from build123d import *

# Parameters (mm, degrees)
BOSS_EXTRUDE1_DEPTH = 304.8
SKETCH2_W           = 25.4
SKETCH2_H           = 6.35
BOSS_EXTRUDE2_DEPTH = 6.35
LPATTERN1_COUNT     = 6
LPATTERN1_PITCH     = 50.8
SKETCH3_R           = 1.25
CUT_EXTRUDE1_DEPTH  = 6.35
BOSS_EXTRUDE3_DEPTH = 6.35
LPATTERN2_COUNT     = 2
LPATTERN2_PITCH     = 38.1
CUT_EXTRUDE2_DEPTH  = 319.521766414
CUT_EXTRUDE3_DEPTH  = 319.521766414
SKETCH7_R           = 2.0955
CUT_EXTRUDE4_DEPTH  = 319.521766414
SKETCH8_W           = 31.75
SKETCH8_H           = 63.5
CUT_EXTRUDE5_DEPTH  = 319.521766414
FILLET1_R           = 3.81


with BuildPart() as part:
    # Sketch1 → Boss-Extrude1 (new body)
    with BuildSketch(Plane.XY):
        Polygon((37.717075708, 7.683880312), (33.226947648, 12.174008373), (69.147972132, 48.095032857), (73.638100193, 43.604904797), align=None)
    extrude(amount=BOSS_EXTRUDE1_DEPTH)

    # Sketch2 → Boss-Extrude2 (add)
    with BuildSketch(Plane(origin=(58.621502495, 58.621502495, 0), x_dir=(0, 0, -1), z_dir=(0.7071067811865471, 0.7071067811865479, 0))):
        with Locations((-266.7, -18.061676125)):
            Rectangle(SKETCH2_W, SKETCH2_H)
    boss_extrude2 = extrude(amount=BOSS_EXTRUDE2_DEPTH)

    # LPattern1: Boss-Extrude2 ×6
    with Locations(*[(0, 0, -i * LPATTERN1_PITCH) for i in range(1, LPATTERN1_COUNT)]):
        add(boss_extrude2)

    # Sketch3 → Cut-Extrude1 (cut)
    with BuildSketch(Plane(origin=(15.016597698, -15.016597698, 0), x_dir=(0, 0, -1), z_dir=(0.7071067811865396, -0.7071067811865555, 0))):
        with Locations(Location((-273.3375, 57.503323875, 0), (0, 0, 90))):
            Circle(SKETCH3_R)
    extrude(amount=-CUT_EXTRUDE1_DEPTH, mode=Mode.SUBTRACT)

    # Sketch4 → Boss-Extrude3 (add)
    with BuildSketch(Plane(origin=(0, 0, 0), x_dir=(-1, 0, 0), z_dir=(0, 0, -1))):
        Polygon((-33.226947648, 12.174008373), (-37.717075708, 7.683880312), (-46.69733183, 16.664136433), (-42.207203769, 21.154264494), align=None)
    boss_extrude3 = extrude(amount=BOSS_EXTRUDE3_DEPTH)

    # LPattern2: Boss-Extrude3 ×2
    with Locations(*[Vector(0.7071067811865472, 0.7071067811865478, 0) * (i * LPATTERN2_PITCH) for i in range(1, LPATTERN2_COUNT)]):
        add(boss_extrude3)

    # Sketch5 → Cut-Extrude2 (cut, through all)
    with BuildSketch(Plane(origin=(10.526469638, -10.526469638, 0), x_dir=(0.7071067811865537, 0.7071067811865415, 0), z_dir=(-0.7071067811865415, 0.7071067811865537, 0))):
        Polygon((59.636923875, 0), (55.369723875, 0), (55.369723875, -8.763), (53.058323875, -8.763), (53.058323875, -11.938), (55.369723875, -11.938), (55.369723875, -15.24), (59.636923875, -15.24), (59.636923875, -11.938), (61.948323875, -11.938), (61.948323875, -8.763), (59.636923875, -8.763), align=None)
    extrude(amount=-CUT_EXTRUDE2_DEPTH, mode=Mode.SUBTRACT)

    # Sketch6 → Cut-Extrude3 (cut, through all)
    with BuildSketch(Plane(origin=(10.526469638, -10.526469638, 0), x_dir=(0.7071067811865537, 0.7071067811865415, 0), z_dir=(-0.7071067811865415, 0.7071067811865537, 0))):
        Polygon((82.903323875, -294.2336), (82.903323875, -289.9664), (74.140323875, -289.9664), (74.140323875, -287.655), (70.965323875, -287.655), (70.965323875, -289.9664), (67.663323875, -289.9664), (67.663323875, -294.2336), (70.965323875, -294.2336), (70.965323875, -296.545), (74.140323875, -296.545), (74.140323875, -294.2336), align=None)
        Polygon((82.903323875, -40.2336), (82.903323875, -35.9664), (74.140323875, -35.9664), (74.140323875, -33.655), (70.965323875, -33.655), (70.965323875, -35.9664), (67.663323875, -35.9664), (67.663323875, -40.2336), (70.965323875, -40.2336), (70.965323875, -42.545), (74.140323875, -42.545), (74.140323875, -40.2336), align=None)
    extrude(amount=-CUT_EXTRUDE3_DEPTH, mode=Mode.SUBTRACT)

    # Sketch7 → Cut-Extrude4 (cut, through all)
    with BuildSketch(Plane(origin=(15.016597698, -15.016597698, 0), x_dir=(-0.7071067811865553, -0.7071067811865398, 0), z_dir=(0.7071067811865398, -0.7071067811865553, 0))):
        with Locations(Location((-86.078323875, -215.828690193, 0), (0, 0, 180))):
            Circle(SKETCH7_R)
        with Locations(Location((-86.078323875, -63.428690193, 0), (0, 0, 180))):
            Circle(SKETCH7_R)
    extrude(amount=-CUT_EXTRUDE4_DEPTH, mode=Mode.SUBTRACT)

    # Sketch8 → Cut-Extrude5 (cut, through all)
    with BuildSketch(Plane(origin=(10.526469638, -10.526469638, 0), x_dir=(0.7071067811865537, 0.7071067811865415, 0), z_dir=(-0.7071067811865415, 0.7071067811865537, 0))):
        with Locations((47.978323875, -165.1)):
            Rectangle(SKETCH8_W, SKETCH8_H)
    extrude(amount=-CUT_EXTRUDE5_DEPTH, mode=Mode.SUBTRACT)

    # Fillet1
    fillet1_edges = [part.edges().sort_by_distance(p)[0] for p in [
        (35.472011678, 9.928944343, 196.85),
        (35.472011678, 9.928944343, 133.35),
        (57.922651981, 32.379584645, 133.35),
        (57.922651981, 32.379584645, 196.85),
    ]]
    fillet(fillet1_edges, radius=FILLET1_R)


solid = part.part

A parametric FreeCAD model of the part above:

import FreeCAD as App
import Part
import Sketcher
Q = App.Units.Quantity


def edges_at(feature, points):
    """Names of the edges that pass closest to the given points."""
    edges = feature.Shape.Edges
    near = lambda p: min(range(len(edges)), key=lambda i: edges[i].distToShape(Part.Vertex(*p))[0])
    return sorted({f"Edge{near(p) + 1}" for p in points})


def add_polygon(sketch, points):
    """Adds a closed chain of lines whose ends are joined by coincident constraints."""
    first, n = sketch.GeometryCount, len(points)
    for a, b in zip(points, points[1:] + points[:1]):
        sketch.addGeometry(Part.LineSegment(App.Vector(*a, 0), App.Vector(*b, 0)), False)
    for i in range(n):
        sketch.addConstraint(Sketcher.Constraint("Coincident", first + i, 2, first + (i + 1) % n, 1))

doc = App.newDocument("Part")
body = doc.addObject("PartDesign::Body", "Body")

# Sketch on XY plane
sketch1 = body.newObject("Sketcher::SketchObject", "Sketch")
sketch1.AttachmentSupport = (doc.getObject("XY_Plane"), [""])
sketch1.MapMode = "FlatFace"
add_polygon(sketch1, [(33.226948, 12.174008), (37.717076, 7.68388), (73.6381, 43.604905), (69.147972, 48.095033)])  # lines 0-3
sketch1.addConstraint([
    Sketcher.Constraint("Perpendicular", 0, 1),
    Sketcher.Constraint("Perpendicular", 1, 2),
    Sketcher.Constraint("Perpendicular", 2, 3),
    Sketcher.Constraint("Distance", 1, Q("2 in")),
    Sketcher.Constraint("Angle", 0, Q("-45 deg")),
    Sketcher.Constraint("Distance", 0, Q("0.25 in")),
    Sketcher.Constraint("DistanceX", -1, 1, 1, 2, Q("73.6381 mm")),
    Sketcher.Constraint("DistanceY", -1, 1, 0, 2, Q("7.68388 mm")),
])
pad1 = body.newObject("PartDesign::Pad", "Pad")
pad1.Profile = sketch1
pad1.Length = Q("12 in")

# Sketch on an angled plane
sketch2 = body.newObject("Sketcher::SketchObject", "Sketch001")
sketch2.Placement = App.Placement(App.Vector(58.621502, 58.621502, 0), App.Rotation(App.Vector(0, 0, -1), App.Vector(-0.707106781, 0.707106781, 0), App.Vector(0.707106781, 0.707106781, 0), "ZXY"))
add_polygon(sketch2, [(-279.4, -14.886676), (-279.4, -21.236676), (-254, -21.236676), (-254, -14.886676)])  # lines 0-3
sketch2.addConstraint([
    Sketcher.Constraint("Vertical", 0),
    Sketcher.Constraint("Horizontal", 1),
    Sketcher.Constraint("Vertical", 2),
    Sketcher.Constraint("Horizontal", 3),
    Sketcher.Constraint("DistanceX", 1, 1, 1, 2, Q("1 in")),
    Sketcher.Constraint("DistanceX", 0, 2, -1, 1, Q("11 in")),
    Sketcher.Constraint("DistanceY", 0, 2, 0, 1, Q("0.25 in")),
    Sketcher.Constraint("DistanceY", 0, 2, -1, 1, Q("21.236676 mm")),
])
pad2 = body.newObject("PartDesign::Pad", "Pad001")
pad2.Profile = sketch2
pad2.Length = Q("0.25 in")
doc.recompute()

linearpattern = body.newObject("PartDesign::LinearPattern", "LinearPattern")
linearpattern.Originals = [pad2]
linearpattern.Direction = (doc.getObject("Z_Axis"), [""])
linearpattern.Mode = "offset"
linearpattern.Offset = Q("2 in")
linearpattern.Occurrences = 6
linearpattern.Reversed = True
body.Tip = linearpattern

# Sketch on an angled plane
sketch3 = body.newObject("Sketcher::SketchObject", "Sketch002")
sketch3.Placement = App.Placement(App.Vector(15.016598, -15.016598, 0), App.Rotation(App.Vector(0, 0, -1), App.Vector(0.707106781, 0.707106781, 0), App.Vector(0.707106781, -0.707106781, 0), "ZXY"))
sketch3.addGeometry(Part.Circle(App.Vector(-273.3375, 57.503324, 0), App.Vector(0, 0, 1), 1.25), False)
sketch3.addConstraint([
    Sketcher.Constraint("Diameter", 0, Q("2.5 mm")),
    Sketcher.Constraint("DistanceX", 0, 3, -1, 1, Q("273.3375 mm")),
    Sketcher.Constraint("DistanceY", -1, 1, 0, 3, Q("57.503324 mm")),
])
pocket1 = body.newObject("PartDesign::Pocket", "Pocket")
pocket1.Profile = sketch3
pocket1.Length = Q("0.25 in")

# Sketch on XY plane
sketch4 = body.newObject("Sketcher::SketchObject", "Sketch003")
sketch4.AttachmentSupport = (doc.getObject("XY_Plane"), [""])
sketch4.MapMode = "FlatFace"
add_polygon(sketch4, [(37.717076, 7.68388), (33.226948, 12.174008), (42.207204, 21.154264), (46.697332, 16.664136)])  # lines 0-3
sketch4.addConstraint([
    Sketcher.Constraint("Perpendicular", 0, 1),
    Sketcher.Constraint("Perpendicular", 1, 2),
    Sketcher.Constraint("Perpendicular", 2, 3),
    Sketcher.Constraint("Angle", 0, Q("135 deg")),
    Sketcher.Constraint("Distance", 1, Q("0.5 in")),
    Sketcher.Constraint("Distance", 0, Q("0.25 in")),
    Sketcher.Constraint("DistanceY", -1, 1, 0, 2, Q("12.174008 mm")),
    Sketcher.Constraint("DistanceX", -1, 1, 2, 2, Q("46.697332 mm")),
])
pad3 = body.newObject("PartDesign::Pad", "Pad002")
pad3.Profile = sketch4
pad3.Length = Q("0.25 in")
pad3.Reversed = True
doc.recompute()

datumline = body.newObject("PartDesign::Line", "DatumLine")
datumline.Placement = App.Placement(App.Vector(0, 0, 0), App.Rotation(App.Vector(0, 0, 1), App.Vector(0.707106781, 0.707106781, 0)))
linearpattern2 = body.newObject("PartDesign::LinearPattern", "LinearPattern001")
linearpattern2.Originals = [pad3]
linearpattern2.Direction = (datumline, [""])
linearpattern2.Mode = "offset"
linearpattern2.Offset = Q("1.5 in")
linearpattern2.Occurrences = 2
body.Tip = linearpattern2

# Sketch on an angled plane
sketch5 = body.newObject("Sketcher::SketchObject", "Sketch004")
sketch5.Placement = App.Placement(App.Vector(10.52647, -10.52647, 0), App.Rotation(App.Vector(0.707106781, 0.707106781, 0), App.Vector(0, 0, -0.999999999), App.Vector(-0.707106781, 0.707106781, 0), "ZXY"))
add_polygon(sketch5, [(59.636924, 0), (55.369724, 0), (55.369724, -8.763), (53.058324, -8.763), (53.058324, -11.938), (55.369724, -11.938), (55.369724, -15.24), (59.636924, -15.24), (59.636924, -11.938), (61.948324, -11.938), (61.948324, -8.763), (59.636924, -8.763)])  # lines 0-11
sketch5.addConstraint([
    Sketcher.Constraint("Horizontal", 0),
    Sketcher.Constraint("Vertical", 1),
    Sketcher.Constraint("Horizontal", 2),
    Sketcher.Constraint("Vertical", 3),
    Sketcher.Constraint("Horizontal", 4),
    Sketcher.Constraint("Vertical", 5),
    Sketcher.Constraint("Horizontal", 6),
    Sketcher.Constraint("Vertical", 7),
    Sketcher.Constraint("Horizontal", 8),
    Sketcher.Constraint("Vertical", 9),
    Sketcher.Constraint("Horizontal", 10),
    Sketcher.Constraint("Vertical", 11),
    Sketcher.Constraint("PointOnObject", 0, 2, -1),
    Sketcher.Constraint("Horizontal", 4, 2, 7, 2),
    Sketcher.Constraint("Horizontal", 2, 2, 9, 2),
    Sketcher.Constraint("Vertical", 1, 2, 4, 2),
    Sketcher.Constraint("Vertical", 7, 2, 10, 2),
    Sketcher.Constraint("Equal", 4, 8),
    Sketcher.Constraint("DistanceY", 5, 2, 5, 1, Q("0.13 in")),
    Sketcher.Constraint("DistanceY", 5, 2, -1, 1, Q("0.6 in")),
    Sketcher.Constraint("DistanceX", 0, 2, 0, 1, Q("0.168 in")),
    Sketcher.Constraint("DistanceX", 2, 2, 2, 1, Q("0.091 in")),
    Sketcher.Constraint("DistanceY", 1, 2, 1, 1, Q("0.345 in")),
    Sketcher.Constraint("DistanceX", -1, 1, 0, 2, Q("55.369724 mm")),
])
pocket2 = body.newObject("PartDesign::Pocket", "Pocket001")
pocket2.Profile = sketch5
pocket2.Type = "ThroughAll"

# Sketch on an angled plane
sketch6 = body.newObject("Sketcher::SketchObject", "Sketch005")
sketch6.Placement = App.Placement(App.Vector(10.52647, -10.52647, 0), App.Rotation(App.Vector(0.707106781, 0.707106781, 0), App.Vector(0, 0, -0.999999999), App.Vector(-0.707106781, 0.707106781, 0), "ZXY"))
add_polygon(sketch6, [(82.903324, -294.2336), (82.903324, -289.9664), (74.140324, -289.9664), (74.140324, -287.655), (70.965324, -287.655), (70.965324, -289.9664), (67.663324, -289.9664), (67.663324, -294.2336), (70.965324, -294.2336), (70.965324, -296.545), (74.140324, -296.545), (74.140324, -294.2336)])  # lines 0-11
add_polygon(sketch6, [(82.903324, -40.2336), (82.903324, -35.9664), (74.140324, -35.9664), (74.140324, -33.655), (70.965324, -33.655), (70.965324, -35.9664), (67.663324, -35.9664), (67.663324, -40.2336), (70.965324, -40.2336), (70.965324, -42.545), (74.140324, -42.545), (74.140324, -40.2336)])  # lines 12-23
sketch6.addConstraint([
    Sketcher.Constraint("Vertical", 0),
    Sketcher.Constraint("Horizontal", 1),
    Sketcher.Constraint("Vertical", 2),
    Sketcher.Constraint("Horizontal", 3),
    Sketcher.Constraint("Vertical", 4),
    Sketcher.Constraint("Horizontal", 5),
    Sketcher.Constraint("Vertical", 6),
    Sketcher.Constraint("Horizontal", 7),
    Sketcher.Constraint("Vertical", 8),
    Sketcher.Constraint("Horizontal", 9),
    Sketcher.Constraint("Vertical", 10),
    Sketcher.Constraint("Horizontal", 11),
    Sketcher.Constraint("Vertical", 12),
    Sketcher.Constraint("Horizontal", 13),
    Sketcher.Constraint("Vertical", 14),
    Sketcher.Constraint("Horizontal", 15),
    Sketcher.Constraint("Vertical", 16),
    Sketcher.Constraint("Horizontal", 17),
    Sketcher.Constraint("Vertical", 18),
    Sketcher.Constraint("Horizontal", 19),
    Sketcher.Constraint("Vertical", 20),
    Sketcher.Constraint("Horizontal", 21),
    Sketcher.Constraint("Vertical", 22),
    Sketcher.Constraint("Horizontal", 23),
    Sketcher.Constraint("Horizontal", 1, 2, 4, 2),
    Sketcher.Constraint("Horizontal", 7, 2, 10, 2),
    Sketcher.Constraint("Horizontal", 13, 2, 16, 2),
    Sketcher.Constraint("Horizontal", 19, 2, 22, 2),
    Sketcher.Constraint("Vertical", 4, 2, 7, 2),
    Sketcher.Constraint("Vertical", 2, 2, 9, 2),
    Sketcher.Constraint("Vertical", 11, 2, 12, 2),
    Sketcher.Constraint("Vertical", 10, 2, 13, 2),
    Sketcher.Constraint("Vertical", 8, 2, 15, 2),
    Sketcher.Constraint("Vertical", 6, 2, 17, 2),
    Sketcher.Constraint("Vertical", 16, 2, 19, 2),
    Sketcher.Constraint("Vertical", 14, 2, 21, 2),
    Sketcher.Constraint("Equal", 4, 8),
    Sketcher.Constraint("Equal", 6, 12),
    Sketcher.Constraint("Equal", 10, 14),
    Sketcher.Constraint("Equal", 16, 20),
    Sketcher.Constraint("DistanceY", 0, 2, 12, 2, Q("10 in")),
    Sketcher.Constraint("DistanceX", 5, 2, 5, 1, Q("0.13 in")),
    Sketcher.Constraint("DistanceX", 5, 2, 0, 2, Q("0.6 in")),
    Sketcher.Constraint("DistanceX", 1, 2, 1, 1, Q("0.345 in")),
    Sketcher.Constraint("DistanceY", 0, 1, 0, 2, Q("0.168 in")),
    Sketcher.Constraint("DistanceY", 2, 1, 2, 2, Q("0.091 in")),
    Sketcher.Constraint("DistanceY", 0, 2, -1, 1, Q("11.416 in")),
    Sketcher.Constraint("DistanceX", -1, 1, 0, 2, Q("82.903324 mm")),
])
pocket3 = body.newObject("PartDesign::Pocket", "Pocket002")
pocket3.Profile = sketch6
pocket3.Type = "ThroughAll"

# Sketch on an angled plane
sketch7 = body.newObject("Sketcher::SketchObject", "Sketch006")
sketch7.Placement = App.Placement(App.Vector(15.016598, -15.016598, 0), App.Rotation(App.Vector(-0.707106781, -0.707106781, 0), App.Vector(0, 0, -0.999999999), App.Vector(0.707106781, -0.707106781, 0), "ZXY"))
sketch7.addGeometry([
    Part.Circle(App.Vector(-86.078324, -215.82869, 0), App.Vector(0, 0, 1), 2.0955),
    Part.Circle(App.Vector(-86.078324, -63.42869, 0), App.Vector(0, 0, 1), 2.0955),
], False)
sketch7.addConstraint([
    Sketcher.Constraint("Equal", 0, 1),
    Sketcher.Constraint("Vertical", 0, 3, 1, 3),
    Sketcher.Constraint("Diameter", 0, Q("0.165 in")),
    Sketcher.Constraint("DistanceY", 0, 3, 1, 3, Q("6 in")),
    Sketcher.Constraint("DistanceY", 0, 3, -1, 1, Q("215.82869 mm")),
    Sketcher.Constraint("DistanceX", 0, 3, -1, 1, Q("86.078324 mm")),
])
pocket4 = body.newObject("PartDesign::Pocket", "Pocket003")
pocket4.Profile = sketch7
pocket4.Type = "ThroughAll"

# Sketch on an angled plane
sketch8 = body.newObject("Sketcher::SketchObject", "Sketch007")
sketch8.Placement = App.Placement(App.Vector(10.52647, -10.52647, 0), App.Rotation(App.Vector(0.707106781, 0.707106781, 0), App.Vector(0, 0, -0.999999999), App.Vector(-0.707106781, 0.707106781, 0), "ZXY"))
add_polygon(sketch8, [(32.103324, -133.35), (32.103324, -196.85), (63.853324, -196.85), (63.853324, -133.35)])  # lines 0-3
sketch8.addConstraint([
    Sketcher.Constraint("Vertical", 0),
    Sketcher.Constraint("Horizontal", 1),
    Sketcher.Constraint("Vertical", 2),
    Sketcher.Constraint("Horizontal", 3),
    Sketcher.Constraint("DistanceY", 0, 2, 0, 1, Q("2.5 in")),
    Sketcher.Constraint("DistanceX", 1, 1, 1, 2, Q("1.25 in")),
    Sketcher.Constraint("DistanceY", 0, 2, -1, 1, Q("7.75 in")),
    Sketcher.Constraint("DistanceX", -1, 1, 0, 2, Q("32.103324 mm")),
])
pocket5 = body.newObject("PartDesign::Pocket", "Pocket004")
pocket5.Profile = sketch8
pocket5.Type = "ThroughAll"
doc.recompute()

fillet = body.newObject("PartDesign::Fillet", "Fillet")
fillet.Base = (pocket5, edges_at(pocket5, [
    (35.472, 9.929, 196.85),
    (35.472, 9.929, 133.35),
    (57.923, 32.38, 133.35),
    (57.923, 32.38, 196.85),
]))
fillet.Radius = Q("0.15 in")

doc.recompute()
